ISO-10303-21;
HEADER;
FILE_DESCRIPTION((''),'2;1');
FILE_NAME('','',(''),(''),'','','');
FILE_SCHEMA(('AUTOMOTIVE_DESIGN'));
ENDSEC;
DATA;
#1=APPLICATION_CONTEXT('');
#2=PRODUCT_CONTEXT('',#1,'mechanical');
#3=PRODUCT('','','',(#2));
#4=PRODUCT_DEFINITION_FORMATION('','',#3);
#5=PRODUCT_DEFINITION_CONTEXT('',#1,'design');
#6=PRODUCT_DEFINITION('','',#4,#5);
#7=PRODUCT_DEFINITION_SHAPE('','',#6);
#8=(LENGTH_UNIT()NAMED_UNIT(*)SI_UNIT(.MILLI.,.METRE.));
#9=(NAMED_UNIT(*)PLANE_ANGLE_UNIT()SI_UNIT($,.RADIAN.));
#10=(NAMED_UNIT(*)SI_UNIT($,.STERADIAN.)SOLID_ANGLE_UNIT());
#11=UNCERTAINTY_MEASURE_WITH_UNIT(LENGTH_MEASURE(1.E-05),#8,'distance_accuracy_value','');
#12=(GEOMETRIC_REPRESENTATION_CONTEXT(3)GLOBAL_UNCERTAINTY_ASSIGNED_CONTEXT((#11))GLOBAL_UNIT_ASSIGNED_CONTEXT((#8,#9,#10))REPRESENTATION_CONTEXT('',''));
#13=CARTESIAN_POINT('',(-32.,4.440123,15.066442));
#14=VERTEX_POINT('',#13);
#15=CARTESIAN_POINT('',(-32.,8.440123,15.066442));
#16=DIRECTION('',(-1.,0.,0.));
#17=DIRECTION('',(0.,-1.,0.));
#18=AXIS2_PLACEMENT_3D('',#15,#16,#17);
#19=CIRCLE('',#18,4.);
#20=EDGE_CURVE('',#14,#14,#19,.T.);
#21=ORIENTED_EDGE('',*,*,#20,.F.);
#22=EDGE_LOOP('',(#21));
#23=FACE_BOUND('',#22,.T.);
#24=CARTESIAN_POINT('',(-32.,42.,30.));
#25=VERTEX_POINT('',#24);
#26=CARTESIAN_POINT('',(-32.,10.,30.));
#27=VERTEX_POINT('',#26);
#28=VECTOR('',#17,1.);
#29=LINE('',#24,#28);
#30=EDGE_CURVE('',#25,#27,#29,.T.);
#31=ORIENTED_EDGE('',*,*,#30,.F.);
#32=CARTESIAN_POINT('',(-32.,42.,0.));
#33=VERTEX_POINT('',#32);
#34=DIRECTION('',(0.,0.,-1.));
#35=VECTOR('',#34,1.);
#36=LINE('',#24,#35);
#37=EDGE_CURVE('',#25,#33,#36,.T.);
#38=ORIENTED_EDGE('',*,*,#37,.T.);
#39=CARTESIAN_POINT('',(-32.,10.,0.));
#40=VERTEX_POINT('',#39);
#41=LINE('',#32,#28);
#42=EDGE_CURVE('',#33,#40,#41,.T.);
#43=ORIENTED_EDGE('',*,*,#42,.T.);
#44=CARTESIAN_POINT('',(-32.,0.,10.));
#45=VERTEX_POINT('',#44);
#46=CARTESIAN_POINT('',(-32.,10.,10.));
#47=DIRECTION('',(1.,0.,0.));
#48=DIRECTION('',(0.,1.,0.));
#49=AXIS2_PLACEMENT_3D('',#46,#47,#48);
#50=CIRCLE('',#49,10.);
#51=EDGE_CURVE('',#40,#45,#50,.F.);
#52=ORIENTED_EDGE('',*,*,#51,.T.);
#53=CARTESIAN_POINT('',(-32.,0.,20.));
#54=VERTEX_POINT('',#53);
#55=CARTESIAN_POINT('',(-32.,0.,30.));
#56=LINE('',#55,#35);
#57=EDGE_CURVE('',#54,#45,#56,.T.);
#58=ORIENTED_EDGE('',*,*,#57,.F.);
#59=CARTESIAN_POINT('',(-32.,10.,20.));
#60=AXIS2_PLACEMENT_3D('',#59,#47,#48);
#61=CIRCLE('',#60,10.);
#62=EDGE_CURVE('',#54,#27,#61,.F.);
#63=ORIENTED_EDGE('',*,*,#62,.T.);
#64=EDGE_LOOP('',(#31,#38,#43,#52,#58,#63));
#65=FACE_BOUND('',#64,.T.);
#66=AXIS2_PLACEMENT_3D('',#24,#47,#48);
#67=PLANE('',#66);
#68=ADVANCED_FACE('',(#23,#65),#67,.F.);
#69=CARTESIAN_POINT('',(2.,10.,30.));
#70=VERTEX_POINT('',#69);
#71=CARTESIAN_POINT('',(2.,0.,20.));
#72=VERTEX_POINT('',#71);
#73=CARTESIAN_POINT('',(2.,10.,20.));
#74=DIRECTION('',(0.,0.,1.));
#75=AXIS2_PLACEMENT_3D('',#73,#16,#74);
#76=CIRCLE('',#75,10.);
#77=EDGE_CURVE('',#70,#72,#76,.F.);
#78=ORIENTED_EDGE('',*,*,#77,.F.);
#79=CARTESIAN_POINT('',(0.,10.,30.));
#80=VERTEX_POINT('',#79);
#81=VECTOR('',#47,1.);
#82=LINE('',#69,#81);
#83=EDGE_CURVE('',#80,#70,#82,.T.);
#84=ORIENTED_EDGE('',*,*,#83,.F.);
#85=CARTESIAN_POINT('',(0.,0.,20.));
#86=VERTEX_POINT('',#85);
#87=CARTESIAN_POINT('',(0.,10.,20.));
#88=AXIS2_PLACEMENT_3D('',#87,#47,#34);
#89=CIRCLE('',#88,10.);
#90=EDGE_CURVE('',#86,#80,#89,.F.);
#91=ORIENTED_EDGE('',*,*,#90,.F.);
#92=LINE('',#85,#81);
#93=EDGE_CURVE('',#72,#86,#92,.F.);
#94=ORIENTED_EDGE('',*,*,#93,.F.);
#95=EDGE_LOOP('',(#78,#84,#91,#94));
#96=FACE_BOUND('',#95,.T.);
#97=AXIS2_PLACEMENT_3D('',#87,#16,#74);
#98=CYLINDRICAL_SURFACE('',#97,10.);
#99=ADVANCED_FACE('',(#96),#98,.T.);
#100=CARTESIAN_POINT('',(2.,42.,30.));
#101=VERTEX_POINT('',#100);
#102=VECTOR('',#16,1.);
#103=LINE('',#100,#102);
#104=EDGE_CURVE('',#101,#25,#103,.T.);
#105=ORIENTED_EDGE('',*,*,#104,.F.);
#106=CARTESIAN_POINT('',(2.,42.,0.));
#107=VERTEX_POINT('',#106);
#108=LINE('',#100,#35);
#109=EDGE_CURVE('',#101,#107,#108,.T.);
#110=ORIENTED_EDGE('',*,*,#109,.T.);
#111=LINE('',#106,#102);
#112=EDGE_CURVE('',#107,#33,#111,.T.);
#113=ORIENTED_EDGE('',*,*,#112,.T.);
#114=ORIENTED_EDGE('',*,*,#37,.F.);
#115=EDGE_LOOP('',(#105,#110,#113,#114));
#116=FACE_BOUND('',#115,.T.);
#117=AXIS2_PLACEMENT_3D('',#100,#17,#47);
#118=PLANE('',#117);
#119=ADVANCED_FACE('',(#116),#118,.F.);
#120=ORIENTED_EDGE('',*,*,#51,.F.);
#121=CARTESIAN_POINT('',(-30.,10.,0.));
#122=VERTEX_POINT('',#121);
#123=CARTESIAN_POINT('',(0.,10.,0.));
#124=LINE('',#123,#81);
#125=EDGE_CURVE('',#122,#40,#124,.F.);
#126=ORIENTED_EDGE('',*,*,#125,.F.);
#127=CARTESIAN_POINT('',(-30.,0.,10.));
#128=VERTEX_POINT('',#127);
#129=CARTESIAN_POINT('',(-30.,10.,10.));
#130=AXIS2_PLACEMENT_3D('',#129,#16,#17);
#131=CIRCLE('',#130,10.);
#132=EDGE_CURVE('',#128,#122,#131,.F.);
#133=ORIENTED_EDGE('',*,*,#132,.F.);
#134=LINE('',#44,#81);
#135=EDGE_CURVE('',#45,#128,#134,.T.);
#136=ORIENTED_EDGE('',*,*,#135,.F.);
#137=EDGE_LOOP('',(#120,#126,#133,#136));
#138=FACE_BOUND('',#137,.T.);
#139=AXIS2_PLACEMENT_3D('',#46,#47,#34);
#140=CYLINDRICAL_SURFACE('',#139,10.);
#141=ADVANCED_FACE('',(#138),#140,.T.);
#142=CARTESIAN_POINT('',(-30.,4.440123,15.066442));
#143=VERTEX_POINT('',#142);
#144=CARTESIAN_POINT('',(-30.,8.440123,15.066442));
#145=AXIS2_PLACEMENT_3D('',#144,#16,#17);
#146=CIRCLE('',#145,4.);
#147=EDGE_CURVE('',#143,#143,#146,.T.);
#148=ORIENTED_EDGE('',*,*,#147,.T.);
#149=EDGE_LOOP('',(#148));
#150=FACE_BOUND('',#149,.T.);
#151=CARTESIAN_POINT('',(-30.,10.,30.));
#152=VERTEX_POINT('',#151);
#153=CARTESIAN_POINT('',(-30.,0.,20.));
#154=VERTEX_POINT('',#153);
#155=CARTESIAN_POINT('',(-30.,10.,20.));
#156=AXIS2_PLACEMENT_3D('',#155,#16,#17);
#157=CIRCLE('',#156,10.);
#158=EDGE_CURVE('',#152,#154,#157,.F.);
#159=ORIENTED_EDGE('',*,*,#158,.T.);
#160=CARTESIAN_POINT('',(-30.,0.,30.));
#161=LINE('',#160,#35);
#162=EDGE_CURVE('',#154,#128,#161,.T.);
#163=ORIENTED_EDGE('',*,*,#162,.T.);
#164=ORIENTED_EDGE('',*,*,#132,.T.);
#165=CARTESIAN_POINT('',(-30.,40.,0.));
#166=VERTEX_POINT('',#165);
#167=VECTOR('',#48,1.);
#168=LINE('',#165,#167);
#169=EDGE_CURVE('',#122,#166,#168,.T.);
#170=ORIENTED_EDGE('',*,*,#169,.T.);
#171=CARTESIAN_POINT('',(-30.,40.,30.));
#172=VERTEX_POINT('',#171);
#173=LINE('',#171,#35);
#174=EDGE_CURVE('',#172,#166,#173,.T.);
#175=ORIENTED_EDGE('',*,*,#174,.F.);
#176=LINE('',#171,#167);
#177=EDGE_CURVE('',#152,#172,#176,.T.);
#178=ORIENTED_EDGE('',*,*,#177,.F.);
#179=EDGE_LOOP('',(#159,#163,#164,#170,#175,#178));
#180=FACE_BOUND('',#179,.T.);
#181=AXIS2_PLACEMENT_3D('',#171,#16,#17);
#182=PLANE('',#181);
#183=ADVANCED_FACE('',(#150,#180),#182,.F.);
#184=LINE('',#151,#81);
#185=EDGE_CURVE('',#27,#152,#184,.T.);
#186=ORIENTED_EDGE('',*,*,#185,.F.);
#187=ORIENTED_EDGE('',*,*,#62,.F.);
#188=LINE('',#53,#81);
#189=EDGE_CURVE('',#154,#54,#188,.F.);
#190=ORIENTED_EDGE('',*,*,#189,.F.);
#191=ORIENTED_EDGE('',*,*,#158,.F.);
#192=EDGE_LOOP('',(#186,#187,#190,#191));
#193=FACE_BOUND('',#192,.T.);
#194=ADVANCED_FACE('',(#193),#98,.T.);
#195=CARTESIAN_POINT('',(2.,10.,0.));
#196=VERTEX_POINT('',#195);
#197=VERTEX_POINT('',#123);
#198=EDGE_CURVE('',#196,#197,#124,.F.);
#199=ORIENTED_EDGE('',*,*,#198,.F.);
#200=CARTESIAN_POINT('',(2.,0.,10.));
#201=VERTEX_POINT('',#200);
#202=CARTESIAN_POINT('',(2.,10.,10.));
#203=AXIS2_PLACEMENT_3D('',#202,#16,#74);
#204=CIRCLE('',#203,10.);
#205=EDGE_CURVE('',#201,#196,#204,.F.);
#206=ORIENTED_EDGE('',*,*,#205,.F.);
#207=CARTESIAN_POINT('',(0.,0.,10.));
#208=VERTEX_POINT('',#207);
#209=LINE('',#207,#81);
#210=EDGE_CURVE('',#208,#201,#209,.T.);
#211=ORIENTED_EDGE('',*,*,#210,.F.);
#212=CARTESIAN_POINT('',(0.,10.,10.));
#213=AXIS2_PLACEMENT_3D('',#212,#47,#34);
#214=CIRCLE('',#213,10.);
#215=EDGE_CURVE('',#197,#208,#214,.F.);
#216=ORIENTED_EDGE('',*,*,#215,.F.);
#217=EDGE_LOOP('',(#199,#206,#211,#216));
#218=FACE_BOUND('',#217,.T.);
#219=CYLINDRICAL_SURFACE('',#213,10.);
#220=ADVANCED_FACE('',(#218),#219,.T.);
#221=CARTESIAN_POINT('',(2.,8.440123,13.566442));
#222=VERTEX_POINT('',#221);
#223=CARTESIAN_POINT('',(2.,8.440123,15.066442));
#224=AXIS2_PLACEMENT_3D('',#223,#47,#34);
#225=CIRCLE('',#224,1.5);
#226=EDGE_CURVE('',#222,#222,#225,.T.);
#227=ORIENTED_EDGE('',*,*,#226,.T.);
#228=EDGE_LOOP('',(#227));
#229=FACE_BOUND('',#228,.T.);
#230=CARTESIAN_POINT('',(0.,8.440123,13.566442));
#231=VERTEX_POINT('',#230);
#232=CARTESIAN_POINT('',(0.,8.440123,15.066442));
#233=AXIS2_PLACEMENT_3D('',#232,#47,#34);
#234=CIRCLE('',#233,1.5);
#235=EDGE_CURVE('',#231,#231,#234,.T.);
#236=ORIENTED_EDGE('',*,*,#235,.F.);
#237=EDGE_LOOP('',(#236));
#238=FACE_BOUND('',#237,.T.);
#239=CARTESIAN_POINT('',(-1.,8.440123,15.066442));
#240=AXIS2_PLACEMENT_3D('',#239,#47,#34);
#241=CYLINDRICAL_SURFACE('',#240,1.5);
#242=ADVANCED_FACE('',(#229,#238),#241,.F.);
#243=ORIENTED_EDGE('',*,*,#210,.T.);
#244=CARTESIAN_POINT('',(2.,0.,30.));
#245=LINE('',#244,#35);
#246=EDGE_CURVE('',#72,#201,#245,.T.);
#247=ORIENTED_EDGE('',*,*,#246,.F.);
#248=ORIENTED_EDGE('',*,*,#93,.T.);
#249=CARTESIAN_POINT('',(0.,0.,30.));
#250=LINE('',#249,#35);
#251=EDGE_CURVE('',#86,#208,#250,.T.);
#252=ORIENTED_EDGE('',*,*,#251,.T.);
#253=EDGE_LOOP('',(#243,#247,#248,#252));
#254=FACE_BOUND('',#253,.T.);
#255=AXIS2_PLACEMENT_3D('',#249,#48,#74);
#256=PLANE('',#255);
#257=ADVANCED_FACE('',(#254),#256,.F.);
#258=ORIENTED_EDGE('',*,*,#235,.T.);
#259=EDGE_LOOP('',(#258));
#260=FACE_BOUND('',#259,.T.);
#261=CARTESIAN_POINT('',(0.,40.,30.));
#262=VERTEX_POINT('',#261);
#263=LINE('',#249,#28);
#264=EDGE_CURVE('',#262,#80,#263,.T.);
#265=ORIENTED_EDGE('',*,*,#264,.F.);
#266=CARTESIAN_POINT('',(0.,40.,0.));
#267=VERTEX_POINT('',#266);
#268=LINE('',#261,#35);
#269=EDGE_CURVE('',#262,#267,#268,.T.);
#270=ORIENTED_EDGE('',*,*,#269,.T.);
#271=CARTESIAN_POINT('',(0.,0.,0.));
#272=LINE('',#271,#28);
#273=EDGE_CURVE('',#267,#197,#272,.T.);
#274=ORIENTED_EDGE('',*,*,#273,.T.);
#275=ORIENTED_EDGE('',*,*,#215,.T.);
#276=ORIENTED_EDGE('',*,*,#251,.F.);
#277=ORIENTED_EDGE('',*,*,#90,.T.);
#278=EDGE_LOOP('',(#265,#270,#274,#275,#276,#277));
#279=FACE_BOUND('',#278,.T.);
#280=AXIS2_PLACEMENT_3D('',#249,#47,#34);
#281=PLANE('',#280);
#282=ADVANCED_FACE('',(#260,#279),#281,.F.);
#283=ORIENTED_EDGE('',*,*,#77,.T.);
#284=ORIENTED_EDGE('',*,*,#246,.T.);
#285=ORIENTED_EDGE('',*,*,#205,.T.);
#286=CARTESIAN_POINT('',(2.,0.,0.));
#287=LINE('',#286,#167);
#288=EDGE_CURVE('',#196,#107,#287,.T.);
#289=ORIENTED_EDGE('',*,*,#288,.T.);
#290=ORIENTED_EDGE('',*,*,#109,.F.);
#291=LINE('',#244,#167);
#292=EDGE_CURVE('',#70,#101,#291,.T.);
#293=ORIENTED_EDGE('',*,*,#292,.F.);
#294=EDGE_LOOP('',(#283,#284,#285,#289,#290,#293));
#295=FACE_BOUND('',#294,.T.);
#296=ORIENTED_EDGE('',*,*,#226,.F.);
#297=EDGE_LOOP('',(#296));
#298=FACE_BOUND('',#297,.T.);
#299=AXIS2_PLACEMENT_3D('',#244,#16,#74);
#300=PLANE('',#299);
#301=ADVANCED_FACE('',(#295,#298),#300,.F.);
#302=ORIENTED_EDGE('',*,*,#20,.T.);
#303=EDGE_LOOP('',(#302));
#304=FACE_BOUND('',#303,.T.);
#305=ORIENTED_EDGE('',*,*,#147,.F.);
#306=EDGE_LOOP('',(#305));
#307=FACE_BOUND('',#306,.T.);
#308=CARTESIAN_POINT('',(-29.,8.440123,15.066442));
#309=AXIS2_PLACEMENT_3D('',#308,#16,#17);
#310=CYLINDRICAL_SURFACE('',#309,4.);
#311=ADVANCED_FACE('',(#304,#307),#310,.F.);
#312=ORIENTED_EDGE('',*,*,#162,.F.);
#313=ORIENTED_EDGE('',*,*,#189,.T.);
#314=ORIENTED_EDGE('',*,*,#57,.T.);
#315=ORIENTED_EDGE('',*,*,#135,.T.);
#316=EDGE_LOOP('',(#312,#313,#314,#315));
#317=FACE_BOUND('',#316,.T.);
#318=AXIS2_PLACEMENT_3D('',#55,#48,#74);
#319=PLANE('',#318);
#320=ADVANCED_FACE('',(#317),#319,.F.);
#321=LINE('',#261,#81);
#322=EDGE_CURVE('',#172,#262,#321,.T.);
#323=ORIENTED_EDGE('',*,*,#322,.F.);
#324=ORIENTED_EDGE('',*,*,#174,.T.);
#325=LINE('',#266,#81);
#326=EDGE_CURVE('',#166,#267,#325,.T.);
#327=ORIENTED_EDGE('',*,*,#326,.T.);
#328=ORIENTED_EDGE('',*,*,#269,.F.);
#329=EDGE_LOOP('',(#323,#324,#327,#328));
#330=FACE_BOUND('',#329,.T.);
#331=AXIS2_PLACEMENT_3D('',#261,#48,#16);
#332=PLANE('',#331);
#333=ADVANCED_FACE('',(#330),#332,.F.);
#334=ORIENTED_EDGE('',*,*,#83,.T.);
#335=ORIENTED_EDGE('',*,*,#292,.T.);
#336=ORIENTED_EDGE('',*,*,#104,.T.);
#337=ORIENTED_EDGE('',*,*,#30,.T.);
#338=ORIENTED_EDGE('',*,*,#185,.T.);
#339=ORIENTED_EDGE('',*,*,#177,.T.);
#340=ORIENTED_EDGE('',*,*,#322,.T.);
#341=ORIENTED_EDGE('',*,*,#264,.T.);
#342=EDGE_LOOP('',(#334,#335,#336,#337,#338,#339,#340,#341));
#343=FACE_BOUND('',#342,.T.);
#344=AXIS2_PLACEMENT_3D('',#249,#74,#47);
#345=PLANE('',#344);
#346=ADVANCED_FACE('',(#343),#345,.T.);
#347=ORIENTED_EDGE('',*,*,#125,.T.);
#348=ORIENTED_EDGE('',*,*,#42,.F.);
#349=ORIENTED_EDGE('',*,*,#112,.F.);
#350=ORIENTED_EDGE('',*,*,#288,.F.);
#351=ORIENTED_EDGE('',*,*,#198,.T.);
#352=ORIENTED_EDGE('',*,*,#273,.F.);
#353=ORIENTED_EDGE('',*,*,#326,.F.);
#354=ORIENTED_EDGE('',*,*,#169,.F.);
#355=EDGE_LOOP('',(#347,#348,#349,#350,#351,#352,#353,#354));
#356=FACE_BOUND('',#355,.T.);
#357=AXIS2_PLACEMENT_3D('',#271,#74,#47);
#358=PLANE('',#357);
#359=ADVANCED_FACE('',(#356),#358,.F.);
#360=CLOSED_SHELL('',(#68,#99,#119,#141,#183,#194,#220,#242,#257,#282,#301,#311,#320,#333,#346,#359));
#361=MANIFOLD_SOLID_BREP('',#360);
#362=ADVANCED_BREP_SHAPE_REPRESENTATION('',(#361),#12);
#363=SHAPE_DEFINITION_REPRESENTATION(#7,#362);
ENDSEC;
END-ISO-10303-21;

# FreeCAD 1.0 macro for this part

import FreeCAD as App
import Part
import Sketcher


def edges_at(feature, points):
    """Names of the edges that pass closest to the given points."""
    edges = feature.Shape.Edges
    near = lambda p: min(range(len(edges)), key=lambda i: edges[i].distToShape(Part.Vertex(*p))[0])
    return sorted({f"Edge{near(p) + 1}" for p in points})

doc = App.newDocument("Part")
params = doc.addObject("Spreadsheet::Sheet", "Params")
for row, (alias, value) in enumerate([
    ("sketch1_width", "2 mm"),
    ("sketch1_width2", "34 mm"),
    ("sketch1_height", "40 mm"),
    ("sketch1_height2", "42 mm"),
    ("pad1_length", "30 mm"),
    ("fillet_radius", "10 mm"),
    ("sketch2_diameter", "8 mm"),
    ("pocket1_length", "3 mm"),
    ("sketch3_diameter", "3 mm"),
    ("pocket2_length", "3 mm"),
], start=1):
    params.set(f"A{row}", alias)
    params.set(f"B{row}", "=" + value)
    params.setAlias(f"B{row}", alias)

body = doc.addObject("PartDesign::Body", "Body")

sketch1 = body.newObject("Sketcher::SketchObject", "Sketch")
sketch1.AttachmentSupport = (doc.getObject("XY_Plane"), [""])
sketch1.MapMode = "FlatFace"
sketch1.addGeometry([
    Part.LineSegment(App.Vector(0, 40, 0), App.Vector(0, 0, 0)),
    Part.LineSegment(App.Vector(0, 0, 0), App.Vector(2, 0, 0)),
    Part.LineSegment(App.Vector(2, 0, 0), App.Vector(2, 42, 0)),
    Part.LineSegment(App.Vector(2, 42, 0), App.Vector(-32, 42, 0)),
    Part.LineSegment(App.Vector(-32, 42, 0), App.Vector(-32, 0, 0)),
    Part.LineSegment(App.Vector(-32, 0, 0), App.Vector(-30, 0, 0)),
    Part.LineSegment(App.Vector(-30, 0, 0), App.Vector(-30, 40, 0)),
    Part.LineSegment(App.Vector(-30, 40, 0), App.Vector(0, 40, 0)),
], False)
sketch1.addConstraint([
    Sketcher.Constraint("Coincident", 0, 2, 1, 1),
    Sketcher.Constraint("Coincident", 1, 2, 2, 1),
    Sketcher.Constraint("Coincident", 2, 2, 3, 1),
    Sketcher.Constraint("Coincident", 3, 2, 4, 1),
    Sketcher.Constraint("Coincident", 4, 2, 5, 1),
    Sketcher.Constraint("Coincident", 5, 2, 6, 1),
    Sketcher.Constraint("Coincident", 6, 2, 7, 1),
    Sketcher.Constraint("Coincident", 7, 2, 0, 1),
    Sketcher.Constraint("Vertical", 0),
    Sketcher.Constraint("Horizontal", 1),
    Sketcher.Constraint("Vertical", 2),
    Sketcher.Constraint("Horizontal", 3),
    Sketcher.Constraint("Vertical", 4),
    Sketcher.Constraint("Horizontal", 5),
    Sketcher.Constraint("Vertical", 6),
    Sketcher.Constraint("Horizontal", 7),
    Sketcher.Constraint("Coincident", 0, 2, -1, 1),
    Sketcher.Constraint("PointOnObject", 4, 2, -1),
    Sketcher.Constraint("Equal", 1, 5),
    Sketcher.Constraint("DistanceX", 1, 1, 1, 2, 2.0),
    Sketcher.Constraint("DistanceX", 3, 2, 3, 1, 34.0),
    Sketcher.Constraint("DistanceY", 0, 2, 0, 1, 40.0),
    Sketcher.Constraint("DistanceY", 2, 1, 2, 2, 42.0),
])
sketch1.setExpression("Constraints[19]", "Params.sketch1_width")
sketch1.setExpression("Constraints[20]", "Params.sketch1_width2")
sketch1.setExpression("Constraints[21]", "Params.sketch1_height")
sketch1.setExpression("Constraints[22]", "Params.sketch1_height2")
pad1 = body.newObject("PartDesign::Pad", "Pad")
pad1.Profile = sketch1
pad1.setExpression("Length", "Params.pad1_length")
doc.recompute()

fillet = body.newObject("PartDesign::Fillet", "Fillet")
fillet.Base = (pad1, edges_at(pad1, [
    (1, 0, 0),
    (-31, 0, 30),
    (1, 0, 30),
    (-31, 0, 0),
]))
fillet.setExpression("Radius", "Params.fillet_radius")

sketch2 = body.newObject("Sketcher::SketchObject", "Sketch001")
sketch2.AttachmentSupport = (doc.getObject("YZ_Plane"), [""])
sketch2.MapMode = "FlatFace"
sketch2.AttachmentOffset = App.Placement(App.Vector(0, 0, -32), App.Rotation())
sketch2.addGeometry(Part.Circle(App.Vector(8.4, 15.1, 0), App.Vector(0, 0, 1), 4), False)
sketch2.addConstraint([
    Sketcher.Constraint("Diameter", 0, 8.0),
    Sketcher.Constraint("DistanceX", -1, 1, 0, 3, 8.440123),
    Sketcher.Constraint("DistanceY", -1, 1, 0, 3, 15.066442),
])
sketch2.setExpression("Constraints[0]", "Params.sketch2_diameter")
pocket1 = body.newObject("PartDesign::Pocket", "Pocket")
pocket1.Profile = sketch2
pocket1.setExpression("Length", "Params.pocket1_length")
pocket1.Reversed = True

sketch3 = body.newObject("Sketcher::SketchObject", "Sketch002")
sketch3.AttachmentSupport = (doc.getObject("YZ_Plane"), [""])
sketch3.MapMode = "FlatFace"
sketch3.AttachmentOffset = App.Placement(App.Vector(0, 0, 2), App.Rotation())
sketch3.addGeometry(Part.Circle(App.Vector(8.4, 15.1, 0), App.Vector(0, 0, 1), 1.5), False)
sketch3.addConstraint([
    Sketcher.Constraint("Diameter", 0, 3.0),
    Sketcher.Constraint("DistanceX", -1, 1, 0, 3, 8.440123),
    Sketcher.Constraint("DistanceY", -1, 1, 0, 3, 15.066442),
])
sketch3.setExpression("Constraints[0]", "Params.sketch3_diameter")
pocket2 = body.newObject("PartDesign::Pocket", "Pocket001")
pocket2.Profile = sketch3
pocket2.setExpression("Length", "Params.pocket2_length")

doc.recompute()
